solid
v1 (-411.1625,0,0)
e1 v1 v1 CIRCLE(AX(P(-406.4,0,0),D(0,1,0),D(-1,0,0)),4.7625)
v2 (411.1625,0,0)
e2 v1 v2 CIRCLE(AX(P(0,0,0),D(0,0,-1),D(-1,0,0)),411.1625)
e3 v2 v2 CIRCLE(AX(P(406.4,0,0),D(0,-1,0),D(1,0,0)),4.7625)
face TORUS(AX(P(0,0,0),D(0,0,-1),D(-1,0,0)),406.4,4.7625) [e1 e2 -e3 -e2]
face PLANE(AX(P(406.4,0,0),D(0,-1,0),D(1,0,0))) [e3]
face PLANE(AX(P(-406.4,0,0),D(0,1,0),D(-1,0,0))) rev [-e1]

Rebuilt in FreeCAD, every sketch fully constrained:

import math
import FreeCAD as App
import Part
import Sketcher

V = App.Vector
Q = App.Units.Quantity

doc = App.newDocument("Part")
body = doc.addObject("PartDesign::Body", "Body")

# Sketch on XZ plane
sketch1 = body.newObject("Sketcher::SketchObject", "Sketch")
sketch1.AttachmentSupport = (doc.getObject("XZ_Plane"), [""])
sketch1.MapMode = "FlatFace"
sketch1.addGeometry(Part.Circle(V(406.4, 0, 0), V(0, 0, 1), 4.8), False)
sketch1.addConstraint([
    Sketcher.Constraint("PointOnObject", 0, 3, -1),
    Sketcher.Constraint("Diameter", 0, Q("0.375 in")),
    Sketcher.Constraint("DistanceX", -1, 1, 0, 3, Q("16 in")),
])

# Sketch on XY plane
sketch2 = body.newObject("Sketcher::SketchObject", "Sketch001")
sketch2.AttachmentSupport = (doc.getObject("XY_Plane"), [""])
sketch2.MapMode = "FlatFace"
sketch2.addGeometry(Part.ArcOfCircle(Part.Circle(V(0, 0, 0), V(0, 0, 1), 406), math.radians(0), math.radians(180)), False)
sketch2.addConstraint([
    Sketcher.Constraint("Coincident", 0, 3, -1, 1),
    Sketcher.Constraint("PointOnObject", 0, 1, -1),
    Sketcher.Constraint("PointOnObject", 0, 2, -1),
    Sketcher.Constraint("Radius", 0, Q("16 in")),
])
doc.recompute()

additivepipe = body.newObject("PartDesign::AdditivePipe", "AdditivePipe")
additivepipe.Profile = sketch1
additivepipe.Spine = (sketch2, ["Edge1"])

doc.recompute()
